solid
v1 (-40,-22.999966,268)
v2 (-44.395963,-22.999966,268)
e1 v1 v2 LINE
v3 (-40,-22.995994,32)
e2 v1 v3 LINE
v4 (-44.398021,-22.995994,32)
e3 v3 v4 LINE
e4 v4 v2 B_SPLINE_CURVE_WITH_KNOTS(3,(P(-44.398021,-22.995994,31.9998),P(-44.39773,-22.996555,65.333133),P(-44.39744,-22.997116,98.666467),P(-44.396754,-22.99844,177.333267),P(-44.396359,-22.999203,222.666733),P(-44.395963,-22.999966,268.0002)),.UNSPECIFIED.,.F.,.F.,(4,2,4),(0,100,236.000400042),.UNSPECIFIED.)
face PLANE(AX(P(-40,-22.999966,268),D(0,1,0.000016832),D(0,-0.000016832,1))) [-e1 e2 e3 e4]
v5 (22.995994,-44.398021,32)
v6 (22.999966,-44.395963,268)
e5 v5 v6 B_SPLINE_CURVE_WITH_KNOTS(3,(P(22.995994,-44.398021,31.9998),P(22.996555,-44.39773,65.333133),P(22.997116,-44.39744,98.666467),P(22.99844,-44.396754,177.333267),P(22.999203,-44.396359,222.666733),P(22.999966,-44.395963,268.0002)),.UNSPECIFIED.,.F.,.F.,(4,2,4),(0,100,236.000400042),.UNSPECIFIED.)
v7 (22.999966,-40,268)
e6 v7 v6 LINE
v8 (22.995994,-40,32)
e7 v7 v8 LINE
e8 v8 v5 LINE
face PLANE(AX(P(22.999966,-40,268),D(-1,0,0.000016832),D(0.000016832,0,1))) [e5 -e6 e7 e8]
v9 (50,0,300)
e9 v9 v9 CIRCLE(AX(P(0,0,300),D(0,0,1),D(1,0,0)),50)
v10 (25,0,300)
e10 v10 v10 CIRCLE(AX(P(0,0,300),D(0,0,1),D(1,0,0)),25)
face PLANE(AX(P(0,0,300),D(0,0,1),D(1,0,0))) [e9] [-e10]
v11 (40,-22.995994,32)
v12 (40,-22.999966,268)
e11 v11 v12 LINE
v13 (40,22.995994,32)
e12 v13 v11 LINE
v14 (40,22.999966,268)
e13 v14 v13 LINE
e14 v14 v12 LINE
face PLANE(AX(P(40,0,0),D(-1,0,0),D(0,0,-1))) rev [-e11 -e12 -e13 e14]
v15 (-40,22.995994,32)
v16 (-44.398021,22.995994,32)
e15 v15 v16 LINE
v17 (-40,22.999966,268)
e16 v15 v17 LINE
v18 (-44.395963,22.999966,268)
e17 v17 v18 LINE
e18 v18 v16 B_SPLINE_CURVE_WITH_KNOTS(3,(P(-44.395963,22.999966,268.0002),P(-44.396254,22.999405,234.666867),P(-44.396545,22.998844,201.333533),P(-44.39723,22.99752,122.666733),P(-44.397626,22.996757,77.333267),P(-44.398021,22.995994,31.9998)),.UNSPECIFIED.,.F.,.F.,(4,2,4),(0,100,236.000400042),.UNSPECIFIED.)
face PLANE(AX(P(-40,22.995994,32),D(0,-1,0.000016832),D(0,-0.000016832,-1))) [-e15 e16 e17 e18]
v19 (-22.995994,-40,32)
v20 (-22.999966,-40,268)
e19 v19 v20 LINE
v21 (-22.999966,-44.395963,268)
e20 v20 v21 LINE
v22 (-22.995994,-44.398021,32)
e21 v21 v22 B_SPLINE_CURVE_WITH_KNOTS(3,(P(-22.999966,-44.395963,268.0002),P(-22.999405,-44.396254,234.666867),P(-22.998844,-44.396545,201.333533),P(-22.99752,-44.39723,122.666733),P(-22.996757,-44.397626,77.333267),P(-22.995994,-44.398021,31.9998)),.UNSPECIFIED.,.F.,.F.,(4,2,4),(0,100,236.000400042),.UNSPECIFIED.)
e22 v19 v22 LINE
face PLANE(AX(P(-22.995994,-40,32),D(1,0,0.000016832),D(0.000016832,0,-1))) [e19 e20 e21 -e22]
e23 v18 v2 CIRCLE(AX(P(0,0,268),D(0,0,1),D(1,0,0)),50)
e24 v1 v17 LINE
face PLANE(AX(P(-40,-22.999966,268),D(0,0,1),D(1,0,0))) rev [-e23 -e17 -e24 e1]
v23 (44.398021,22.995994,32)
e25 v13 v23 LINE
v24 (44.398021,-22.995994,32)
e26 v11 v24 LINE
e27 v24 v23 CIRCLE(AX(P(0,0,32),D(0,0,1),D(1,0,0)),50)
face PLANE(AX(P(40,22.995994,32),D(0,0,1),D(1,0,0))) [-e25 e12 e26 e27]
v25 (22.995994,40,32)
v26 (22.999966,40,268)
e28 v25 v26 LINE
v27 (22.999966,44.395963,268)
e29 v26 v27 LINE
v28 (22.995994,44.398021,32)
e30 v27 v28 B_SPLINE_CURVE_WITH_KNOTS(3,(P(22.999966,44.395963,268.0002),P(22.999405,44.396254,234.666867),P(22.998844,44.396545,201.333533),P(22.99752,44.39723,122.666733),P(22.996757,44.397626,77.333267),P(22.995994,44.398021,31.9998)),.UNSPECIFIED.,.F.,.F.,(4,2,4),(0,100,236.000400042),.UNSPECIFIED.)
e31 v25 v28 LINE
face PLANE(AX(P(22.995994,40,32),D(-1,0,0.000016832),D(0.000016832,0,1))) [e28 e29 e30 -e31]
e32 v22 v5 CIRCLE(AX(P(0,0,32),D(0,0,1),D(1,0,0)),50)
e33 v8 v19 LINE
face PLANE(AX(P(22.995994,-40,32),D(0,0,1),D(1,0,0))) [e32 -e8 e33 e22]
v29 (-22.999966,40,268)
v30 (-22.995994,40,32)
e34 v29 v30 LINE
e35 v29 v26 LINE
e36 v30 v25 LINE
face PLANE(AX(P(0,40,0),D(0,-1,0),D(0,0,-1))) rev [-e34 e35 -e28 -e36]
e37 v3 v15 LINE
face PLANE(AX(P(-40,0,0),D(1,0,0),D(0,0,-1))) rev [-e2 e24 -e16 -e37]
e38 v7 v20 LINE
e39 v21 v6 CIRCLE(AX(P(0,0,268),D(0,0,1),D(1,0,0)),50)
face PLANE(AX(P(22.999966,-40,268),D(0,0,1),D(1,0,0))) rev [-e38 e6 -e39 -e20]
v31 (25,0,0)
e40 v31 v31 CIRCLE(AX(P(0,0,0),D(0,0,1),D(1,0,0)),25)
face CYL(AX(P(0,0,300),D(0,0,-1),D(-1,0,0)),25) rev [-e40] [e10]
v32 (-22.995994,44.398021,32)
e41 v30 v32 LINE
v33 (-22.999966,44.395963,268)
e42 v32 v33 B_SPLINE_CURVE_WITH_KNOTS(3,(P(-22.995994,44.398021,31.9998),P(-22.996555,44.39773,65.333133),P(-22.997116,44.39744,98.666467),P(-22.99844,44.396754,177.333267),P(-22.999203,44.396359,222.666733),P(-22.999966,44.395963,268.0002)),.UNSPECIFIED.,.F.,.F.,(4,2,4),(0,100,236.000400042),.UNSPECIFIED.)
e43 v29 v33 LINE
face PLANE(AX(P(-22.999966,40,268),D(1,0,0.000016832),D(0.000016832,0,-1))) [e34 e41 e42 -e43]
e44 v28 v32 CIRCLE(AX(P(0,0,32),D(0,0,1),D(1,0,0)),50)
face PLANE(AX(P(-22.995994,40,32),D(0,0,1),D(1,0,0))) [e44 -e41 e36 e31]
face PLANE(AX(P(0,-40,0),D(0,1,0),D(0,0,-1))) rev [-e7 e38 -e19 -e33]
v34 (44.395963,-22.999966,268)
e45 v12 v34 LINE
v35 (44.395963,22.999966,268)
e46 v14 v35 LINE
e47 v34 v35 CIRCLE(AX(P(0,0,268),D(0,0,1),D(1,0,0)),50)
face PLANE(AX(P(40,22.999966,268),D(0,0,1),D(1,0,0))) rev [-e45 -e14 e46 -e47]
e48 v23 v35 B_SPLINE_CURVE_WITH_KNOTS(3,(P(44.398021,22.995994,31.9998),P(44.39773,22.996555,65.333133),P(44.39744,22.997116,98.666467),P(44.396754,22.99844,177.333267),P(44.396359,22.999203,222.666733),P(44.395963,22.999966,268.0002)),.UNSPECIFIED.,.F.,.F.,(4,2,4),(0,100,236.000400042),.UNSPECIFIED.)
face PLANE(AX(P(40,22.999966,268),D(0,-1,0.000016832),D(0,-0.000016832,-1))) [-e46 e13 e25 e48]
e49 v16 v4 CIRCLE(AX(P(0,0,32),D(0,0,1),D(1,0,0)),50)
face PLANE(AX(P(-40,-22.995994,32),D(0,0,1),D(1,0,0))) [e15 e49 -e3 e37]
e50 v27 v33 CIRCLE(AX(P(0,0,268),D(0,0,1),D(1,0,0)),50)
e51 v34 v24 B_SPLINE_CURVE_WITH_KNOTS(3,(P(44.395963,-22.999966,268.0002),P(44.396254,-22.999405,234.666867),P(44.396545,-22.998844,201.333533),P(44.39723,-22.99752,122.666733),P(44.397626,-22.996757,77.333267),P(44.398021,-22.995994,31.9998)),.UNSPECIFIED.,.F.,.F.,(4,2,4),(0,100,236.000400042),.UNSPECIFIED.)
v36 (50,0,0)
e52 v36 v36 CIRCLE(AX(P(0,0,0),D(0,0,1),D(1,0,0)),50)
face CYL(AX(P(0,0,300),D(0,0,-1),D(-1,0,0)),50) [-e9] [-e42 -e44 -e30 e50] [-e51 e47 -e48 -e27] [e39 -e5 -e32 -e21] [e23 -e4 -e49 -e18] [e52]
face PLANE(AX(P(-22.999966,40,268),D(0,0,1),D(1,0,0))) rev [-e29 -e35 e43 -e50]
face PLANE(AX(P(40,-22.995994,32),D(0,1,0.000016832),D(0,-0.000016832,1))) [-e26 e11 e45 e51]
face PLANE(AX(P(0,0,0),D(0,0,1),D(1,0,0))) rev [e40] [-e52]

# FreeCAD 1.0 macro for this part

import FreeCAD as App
import Part
import Sketcher
from FreeCAD import Vector
Q = App.Units.Quantity


def add_polygon(sketch, points):
    """Adds a closed chain of lines whose ends are joined by coincident constraints."""
    first, n = sketch.GeometryCount, len(points)
    for a, b in zip(points, points[1:] + points[:1]):
        sketch.addGeometry(Part.LineSegment(App.Vector(*a, 0), App.Vector(*b, 0)), False)
    for i in range(n):
        sketch.addConstraint(Sketcher.Constraint("Coincident", first + i, 2, first + (i + 1) % n, 1))

doc = App.newDocument("Part")
body = doc.addObject("PartDesign::Body", "Body")

# Sketch on XY plane
sketch1 = body.newObject("Sketcher::SketchObject", "Sketch")
sketch1.AttachmentSupport = (doc.getObject("XY_Plane"), [""])
sketch1.MapMode = "FlatFace"
sketch1.addGeometry(Part.Circle(Vector(0, 0, 0), Vector(0, 0, 1), 50), False)
sketch1.addGeometry(Part.Circle(Vector(0, 0, 0), Vector(0, 0, 1), 25), False)
sketch1.addConstraint(Sketcher.Constraint("Coincident", 0, 3, -1, 1))
sketch1.addConstraint(Sketcher.Constraint("Coincident", 1, 3, -1, 1))
sketch1.addConstraint(Sketcher.Constraint("Diameter", 0, Q("100 mm")))
sketch1.addConstraint(Sketcher.Constraint("Diameter", 1, Q("50 mm")))
pad1 = body.newObject("PartDesign::Pad", "Pad")
pad1.Profile = sketch1
pad1.Length = 300

# Sketch on XZ plane
sketch2 = body.newObject("Sketcher::SketchObject", "Sketch001")
sketch2.AttachmentSupport = (doc.getObject("XZ_Plane"), [""])
sketch2.MapMode = "FlatFace"
sketch2.AttachmentOffset = App.Placement(Vector(0, 0, -50), App.Rotation())
add_polygon(sketch2, [(-23, 32), (-23, 268), (23, 268), (23, 32)])  # lines 0-3
sketch2.addConstraint(Sketcher.Constraint("Horizontal", 1))
sketch2.addConstraint(Sketcher.Constraint("Horizontal", 3))
sketch2.addConstraint(Sketcher.Constraint("Distance", 0, Q("236 mm")))
sketch2.addConstraint(Sketcher.Constraint("DistanceY", -1, 1, 0, 2, Q("268 mm")))
sketch2.addConstraint(Sketcher.Constraint("DistanceX", 1, 1, 1, 2, Q("45.999933 mm")))
sketch2.addConstraint(Sketcher.Constraint("DistanceX", 3, 2, 3, 1, Q("45.991988 mm")))
sketch2.addConstraint(Sketcher.Constraint("DistanceX", 0, 2, 2, 2, Q("45.99596 mm")))
sketch2.addConstraint(Sketcher.Constraint("DistanceX", 0, 2, -1, 1, Q("22.999966 mm")))
pocket1 = body.newObject("PartDesign::Pocket", "Pocket")
pocket1.Profile = sketch2
pocket1.Length = 10
pocket1.Reversed = True
doc.recompute()

polarpattern = body.newObject("PartDesign::PolarPattern", "PolarPattern")
polarpattern.Originals = [pocket1]
polarpattern.Axis = (doc.getObject("Z_Axis"), [""])
polarpattern.Angle = 360
polarpattern.Occurrences = 4
body.Tip = polarpattern

doc.recompute()
